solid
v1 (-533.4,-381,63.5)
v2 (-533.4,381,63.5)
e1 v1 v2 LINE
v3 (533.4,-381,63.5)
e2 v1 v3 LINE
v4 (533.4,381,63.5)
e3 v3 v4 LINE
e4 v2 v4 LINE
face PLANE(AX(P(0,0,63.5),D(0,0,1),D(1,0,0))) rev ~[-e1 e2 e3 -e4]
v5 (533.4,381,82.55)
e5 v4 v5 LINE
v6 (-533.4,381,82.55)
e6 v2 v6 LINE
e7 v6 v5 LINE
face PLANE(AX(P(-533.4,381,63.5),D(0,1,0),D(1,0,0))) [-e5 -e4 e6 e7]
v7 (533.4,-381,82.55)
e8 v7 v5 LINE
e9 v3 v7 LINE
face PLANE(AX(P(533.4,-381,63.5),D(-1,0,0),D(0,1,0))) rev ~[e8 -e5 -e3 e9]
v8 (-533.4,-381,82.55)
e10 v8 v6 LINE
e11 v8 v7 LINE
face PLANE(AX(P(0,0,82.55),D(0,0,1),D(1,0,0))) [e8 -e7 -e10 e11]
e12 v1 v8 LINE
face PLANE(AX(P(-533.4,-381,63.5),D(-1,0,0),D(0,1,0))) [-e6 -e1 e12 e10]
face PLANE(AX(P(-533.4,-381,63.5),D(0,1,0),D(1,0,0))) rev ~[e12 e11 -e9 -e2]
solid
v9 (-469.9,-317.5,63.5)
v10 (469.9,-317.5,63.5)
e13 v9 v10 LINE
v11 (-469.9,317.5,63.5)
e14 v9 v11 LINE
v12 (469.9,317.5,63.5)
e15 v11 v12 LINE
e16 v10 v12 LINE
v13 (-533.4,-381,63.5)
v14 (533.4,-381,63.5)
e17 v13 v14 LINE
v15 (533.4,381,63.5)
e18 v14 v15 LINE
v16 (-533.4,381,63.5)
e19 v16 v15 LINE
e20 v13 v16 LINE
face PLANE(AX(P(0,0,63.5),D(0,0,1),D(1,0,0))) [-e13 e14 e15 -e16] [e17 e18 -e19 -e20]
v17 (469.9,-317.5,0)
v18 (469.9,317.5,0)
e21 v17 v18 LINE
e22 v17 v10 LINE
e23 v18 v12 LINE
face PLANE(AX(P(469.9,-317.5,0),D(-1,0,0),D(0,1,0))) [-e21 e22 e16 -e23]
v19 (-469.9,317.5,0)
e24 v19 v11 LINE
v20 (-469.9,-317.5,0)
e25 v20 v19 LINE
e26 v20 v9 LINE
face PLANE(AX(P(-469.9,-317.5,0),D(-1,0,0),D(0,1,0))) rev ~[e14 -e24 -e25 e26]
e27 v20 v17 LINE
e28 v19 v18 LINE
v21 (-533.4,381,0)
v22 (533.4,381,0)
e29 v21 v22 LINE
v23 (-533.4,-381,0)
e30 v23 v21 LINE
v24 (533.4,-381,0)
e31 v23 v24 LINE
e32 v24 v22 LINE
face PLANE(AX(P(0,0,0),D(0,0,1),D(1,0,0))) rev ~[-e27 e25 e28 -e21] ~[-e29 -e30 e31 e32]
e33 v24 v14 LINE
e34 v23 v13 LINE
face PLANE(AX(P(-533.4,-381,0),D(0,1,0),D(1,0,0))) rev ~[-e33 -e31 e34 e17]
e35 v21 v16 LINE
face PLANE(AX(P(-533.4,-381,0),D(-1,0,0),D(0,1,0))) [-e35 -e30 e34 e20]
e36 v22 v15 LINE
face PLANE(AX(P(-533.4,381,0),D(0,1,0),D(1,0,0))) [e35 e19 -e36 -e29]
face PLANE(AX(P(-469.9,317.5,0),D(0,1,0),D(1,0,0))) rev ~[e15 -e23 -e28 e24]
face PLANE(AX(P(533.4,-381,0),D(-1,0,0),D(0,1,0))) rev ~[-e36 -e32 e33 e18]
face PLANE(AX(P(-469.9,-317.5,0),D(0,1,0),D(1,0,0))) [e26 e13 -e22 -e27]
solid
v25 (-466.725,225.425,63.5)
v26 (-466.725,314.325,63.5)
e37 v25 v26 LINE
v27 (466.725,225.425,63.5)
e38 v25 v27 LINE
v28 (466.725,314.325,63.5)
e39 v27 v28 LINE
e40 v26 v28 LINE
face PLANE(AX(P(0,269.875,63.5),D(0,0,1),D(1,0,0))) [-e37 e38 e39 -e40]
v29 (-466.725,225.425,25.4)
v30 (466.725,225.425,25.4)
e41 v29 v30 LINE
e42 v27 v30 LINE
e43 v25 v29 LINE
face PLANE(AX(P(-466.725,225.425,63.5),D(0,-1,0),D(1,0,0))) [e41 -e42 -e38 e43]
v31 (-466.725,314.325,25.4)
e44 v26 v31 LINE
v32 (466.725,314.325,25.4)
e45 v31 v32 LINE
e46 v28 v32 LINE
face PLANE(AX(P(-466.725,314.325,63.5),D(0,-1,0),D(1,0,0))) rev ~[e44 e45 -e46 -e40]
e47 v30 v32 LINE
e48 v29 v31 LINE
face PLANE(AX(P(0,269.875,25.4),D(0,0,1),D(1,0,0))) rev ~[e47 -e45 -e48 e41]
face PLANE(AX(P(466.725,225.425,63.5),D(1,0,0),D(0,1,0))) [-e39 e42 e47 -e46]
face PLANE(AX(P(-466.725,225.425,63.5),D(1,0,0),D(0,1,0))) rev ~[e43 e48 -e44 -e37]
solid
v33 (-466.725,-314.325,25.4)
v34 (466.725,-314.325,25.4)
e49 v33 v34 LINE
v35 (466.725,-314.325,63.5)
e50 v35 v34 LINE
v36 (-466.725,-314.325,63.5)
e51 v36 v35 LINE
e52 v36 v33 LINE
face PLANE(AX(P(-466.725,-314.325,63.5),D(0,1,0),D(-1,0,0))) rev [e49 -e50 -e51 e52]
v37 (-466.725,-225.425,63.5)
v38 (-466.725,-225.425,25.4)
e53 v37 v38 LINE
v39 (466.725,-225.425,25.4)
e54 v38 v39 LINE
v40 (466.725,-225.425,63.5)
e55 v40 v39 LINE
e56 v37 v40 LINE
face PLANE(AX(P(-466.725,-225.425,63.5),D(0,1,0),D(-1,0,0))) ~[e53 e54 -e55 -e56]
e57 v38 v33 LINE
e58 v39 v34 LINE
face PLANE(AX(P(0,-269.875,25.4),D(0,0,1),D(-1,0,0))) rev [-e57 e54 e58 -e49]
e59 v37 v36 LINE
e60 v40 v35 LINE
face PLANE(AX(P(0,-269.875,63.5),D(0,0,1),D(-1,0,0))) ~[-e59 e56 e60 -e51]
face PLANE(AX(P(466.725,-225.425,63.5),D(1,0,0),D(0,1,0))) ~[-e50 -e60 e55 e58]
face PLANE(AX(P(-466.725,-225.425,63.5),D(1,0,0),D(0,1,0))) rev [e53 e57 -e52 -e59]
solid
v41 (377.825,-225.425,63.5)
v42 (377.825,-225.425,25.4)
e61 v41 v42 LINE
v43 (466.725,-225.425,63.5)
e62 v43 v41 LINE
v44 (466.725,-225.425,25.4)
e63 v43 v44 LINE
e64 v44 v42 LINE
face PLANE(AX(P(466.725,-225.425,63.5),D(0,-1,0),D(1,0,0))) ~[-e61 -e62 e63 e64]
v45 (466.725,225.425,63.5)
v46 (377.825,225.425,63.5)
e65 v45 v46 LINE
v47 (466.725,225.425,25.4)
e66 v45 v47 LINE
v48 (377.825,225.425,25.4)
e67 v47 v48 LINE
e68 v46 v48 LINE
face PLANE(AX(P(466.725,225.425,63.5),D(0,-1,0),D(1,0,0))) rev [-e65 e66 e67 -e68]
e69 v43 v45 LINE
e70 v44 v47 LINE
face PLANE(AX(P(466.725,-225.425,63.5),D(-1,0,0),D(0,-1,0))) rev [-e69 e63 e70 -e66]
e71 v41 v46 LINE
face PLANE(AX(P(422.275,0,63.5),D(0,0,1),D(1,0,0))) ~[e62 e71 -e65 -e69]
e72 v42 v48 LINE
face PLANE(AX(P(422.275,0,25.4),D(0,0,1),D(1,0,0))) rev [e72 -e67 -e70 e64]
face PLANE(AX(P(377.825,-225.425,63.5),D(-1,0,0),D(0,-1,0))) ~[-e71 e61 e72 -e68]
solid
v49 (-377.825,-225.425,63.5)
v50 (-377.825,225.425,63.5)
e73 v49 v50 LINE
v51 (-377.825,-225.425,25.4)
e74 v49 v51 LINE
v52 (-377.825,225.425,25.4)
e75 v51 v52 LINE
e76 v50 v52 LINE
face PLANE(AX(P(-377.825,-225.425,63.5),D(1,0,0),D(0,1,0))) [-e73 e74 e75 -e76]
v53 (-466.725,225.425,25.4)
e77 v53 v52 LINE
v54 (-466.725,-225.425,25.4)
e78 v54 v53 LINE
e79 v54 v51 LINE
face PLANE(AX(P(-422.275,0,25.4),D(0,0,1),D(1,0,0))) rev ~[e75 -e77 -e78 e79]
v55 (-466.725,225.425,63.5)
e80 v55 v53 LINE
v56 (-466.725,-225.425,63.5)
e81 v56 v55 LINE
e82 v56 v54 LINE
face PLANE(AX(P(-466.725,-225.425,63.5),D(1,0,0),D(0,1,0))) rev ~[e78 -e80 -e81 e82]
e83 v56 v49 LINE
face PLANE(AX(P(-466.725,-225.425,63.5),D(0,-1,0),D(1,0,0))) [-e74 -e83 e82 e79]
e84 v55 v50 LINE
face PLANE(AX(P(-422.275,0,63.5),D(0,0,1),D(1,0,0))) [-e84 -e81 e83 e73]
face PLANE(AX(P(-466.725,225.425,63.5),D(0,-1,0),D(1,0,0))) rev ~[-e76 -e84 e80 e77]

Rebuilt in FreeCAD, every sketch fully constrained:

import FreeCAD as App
import Part
import Sketcher
from FreeCAD import Vector
Q = App.Units.Quantity

doc = App.newDocument("Part")
params = doc.addObject("Spreadsheet::Sheet", "Params")
for row, (alias, value) in enumerate([
    ("sketch1_width", "42 in"),
    ("sketch1_width2", "37 in"),
    ("sketch1_height", "30 in"),
    ("sketch1_height2", "25 in"),
    ("pad1_length", "2.5 in"),
    ("sketch2_height", "3.5 in"),
    ("sketch2_width", "36.75 in"),
    ("pad2_length", "1.5 in"),
    ("sketch3_width", "3.5 in"),
    ("sketch3_height", "17.75 in"),
    ("pad3_length", "1.5 in"),
    ("sketch4_width", "42 in"),
    ("sketch4_height", "30 in"),
    ("pad4_length", "0.75 in"),
], start=1):
    params.set(f"A{row}", alias)
    params.set(f"B{row}", "=" + value)
    params.setAlias(f"B{row}", alias)

body = doc.addObject("PartDesign::Body", "Body")

# Sketch on XY plane
sketch1 = doc.addObject("Sketcher::SketchObject", "Sketch")
body.addObject(sketch1)
sketch1.AttachmentSupport = (doc.XY_Plane, [""])
sketch1.MapMode = "FlatFace"
sketch1.addGeometry([
    Part.LineSegment(Vector(-533, 381, 0), Vector(-533, -381, 0)),  # 0
    Part.LineSegment(Vector(-533, -381, 0), Vector(533, -381, 0)),  # 1
    Part.LineSegment(Vector(533, -381, 0), Vector(533, 381, 0)),  # 2
    Part.LineSegment(Vector(533, 381, 0), Vector(-533, 381, 0)),  # 3
    Part.LineSegment(Vector(470, -318, 0), Vector(-470, -318, 0)),  # 4
    Part.LineSegment(Vector(-470, -318, 0), Vector(-470, 318, 0)),  # 5
    Part.LineSegment(Vector(-470, 318, 0), Vector(470, 318, 0)),  # 6
    Part.LineSegment(Vector(470, 318, 0), Vector(470, -318, 0)),  # 7
], False)
sketch1.addConstraint([
    Sketcher.Constraint("Coincident", 0, 2, 1, 1),
    Sketcher.Constraint("Coincident", 1, 2, 2, 1),
    Sketcher.Constraint("Coincident", 2, 2, 3, 1),
    Sketcher.Constraint("Coincident", 3, 2, 0, 1),
    Sketcher.Constraint("Coincident", 4, 2, 5, 1),
    Sketcher.Constraint("Coincident", 5, 2, 6, 1),
    Sketcher.Constraint("Coincident", 6, 2, 7, 1),
    Sketcher.Constraint("Coincident", 7, 2, 4, 1),
    Sketcher.Constraint("Vertical", 0),
    Sketcher.Constraint("Horizontal", 1),
    Sketcher.Constraint("Vertical", 2),
    Sketcher.Constraint("Horizontal", 3),
    Sketcher.Constraint("Horizontal", 4),
    Sketcher.Constraint("Vertical", 5),
    Sketcher.Constraint("Horizontal", 6),
    Sketcher.Constraint("Vertical", 7),
    Sketcher.Constraint("Symmetric", 0, 2, 2, 2, -1, 1),
    Sketcher.Constraint("Symmetric", 4, 2, 6, 2, -1, 1),
    Sketcher.Constraint("DistanceX", 1, 1, 1, 2, Q("42 in")),
    Sketcher.Constraint("DistanceX", 4, 2, 4, 1, Q("37 in")),
    Sketcher.Constraint("DistanceY", 0, 2, 0, 1, Q("30 in")),
    Sketcher.Constraint("DistanceY", 5, 1, 5, 2, Q("25 in")),
])
sketch1.setExpression("Constraints[18]", "Params.sketch1_width")
sketch1.setExpression("Constraints[19]", "Params.sketch1_width2")
sketch1.setExpression("Constraints[20]", "Params.sketch1_height")
sketch1.setExpression("Constraints[21]", "Params.sketch1_height2")
pad1 = doc.addObject("PartDesign::Pad", "Pad")
body.addObject(pad1)
pad1.Profile = sketch1
pad1.setExpression("Length", "Params.pad1_length")
body2 = doc.addObject("PartDesign::Body", "Body001")

# Sketch on XY plane
sketch2 = doc.addObject("Sketcher::SketchObject", "Sketch001")
body2.addObject(sketch2)
sketch2.AttachmentSupport = (doc.getObject("XY_Plane001"), [""])
sketch2.MapMode = "FlatFace"
sketch2.AttachmentOffset = App.Placement(Vector(0, 0, 2.5 * 25.4), App.Rotation())
sketch2.addGeometry([
    Part.LineSegment(Vector(-467, 314, 0), Vector(-467, 225, 0)),
    Part.LineSegment(Vector(-467, 225, 0), Vector(467, 225, 0)),
    Part.LineSegment(Vector(467, 225, 0), Vector(467, 314, 0)),
    Part.LineSegment(Vector(467, 314, 0), Vector(-467, 314, 0)),
], False)
sketch2.addConstraint([
    Sketcher.Constraint("Coincident", 0, 2, 1, 1),
    Sketcher.Constraint("Coincident", 1, 2, 2, 1),
    Sketcher.Constraint("Coincident", 2, 2, 3, 1),
    Sketcher.Constraint("Coincident", 3, 2, 0, 1),
    Sketcher.Constraint("Vertical", 0),
    Sketcher.Constraint("Horizontal", 1),
    Sketcher.Constraint("Vertical", 2),
    Sketcher.Constraint("Horizontal", 3),
    Sketcher.Constraint("DistanceY", 0, 2, 0, 1, Q("3.5 in")),
    Sketcher.Constraint("DistanceX", 1, 1, 1, 2, Q("36.75 in")),
    Sketcher.Constraint("DistanceX", 0, 2, -1, 1, Q("18.375 in")),
    Sketcher.Constraint("DistanceY", -1, 1, 0, 2, Q("8.875 in")),
])
sketch2.setExpression("Constraints[8]", "Params.sketch2_height")
sketch2.setExpression("Constraints[9]", "Params.sketch2_width")
pad2 = doc.addObject("PartDesign::Pad", "Pad001")
body2.addObject(pad2)
pad2.Profile = sketch2
pad2.setExpression("Length", "Params.pad2_length")
pad2.Reversed = True
body3 = doc.addObject("PartDesign::Body", "Body002")
doc.recompute()

mirroring = doc.addObject("Part::Mirroring", "Mirroring")
mirroring.Source = body2
mirroring.Base = Vector(0, 0, 0)
mirroring.Normal = Vector(0, -1, 0)
body3.BaseFeature = mirroring
doc.recompute()
body4 = doc.addObject("PartDesign::Body", "Body003")

# Sketch on XY plane
sketch3 = doc.addObject("Sketcher::SketchObject", "Sketch002")
body4.addObject(sketch3)
sketch3.AttachmentSupport = (doc.getObject("XY_Plane003"), [""])
sketch3.MapMode = "FlatFace"
sketch3.AttachmentOffset = App.Placement(Vector(0, 0, 2.5 * 25.4), App.Rotation())
sketch3.addGeometry([
    Part.LineSegment(Vector(-467, 225, 0), Vector(-467, -225, 0)),
    Part.LineSegment(Vector(-467, -225, 0), Vector(-378, -225, 0)),
    Part.LineSegment(Vector(-378, -225, 0), Vector(-378, 225, 0)),
    Part.LineSegment(Vector(-378, 225, 0), Vector(-467, 225, 0)),
], False)
sketch3.addConstraint([
    Sketcher.Constraint("Coincident", 0, 2, 1, 1),
    Sketcher.Constraint("Coincident", 1, 2, 2, 1),
    Sketcher.Constraint("Coincident", 2, 2, 3, 1),
    Sketcher.Constraint("Coincident", 3, 2, 0, 1),
    Sketcher.Constraint("Vertical", 0),
    Sketcher.Constraint("Horizontal", 1),
    Sketcher.Constraint("Vertical", 2),
    Sketcher.Constraint("Horizontal", 3),
    Sketcher.Constraint("DistanceX", 1, 1, 1, 2, Q("3.5 in")),
    Sketcher.Constraint("DistanceY", 0, 2, 0, 1, Q("17.75 in")),
    Sketcher.Constraint("DistanceX", 0, 2, -1, 1, Q("18.375 in")),
    Sketcher.Constraint("DistanceY", 0, 2, -1, 1, Q("8.875 in")),
])
sketch3.setExpression("Constraints[8]", "Params.sketch3_width")
sketch3.setExpression("Constraints[9]", "Params.sketch3_height")
pad3 = doc.addObject("PartDesign::Pad", "Pad002")
body4.addObject(pad3)
pad3.Profile = sketch3
pad3.setExpression("Length", "Params.pad3_length")
pad3.Reversed = True
body5 = doc.addObject("PartDesign::Body", "Body004")
doc.recompute()

mirroring2 = doc.addObject("Part::Mirroring", "Mirroring001")
mirroring2.Source = body4
mirroring2.Base = Vector(0, 0, 0)
mirroring2.Normal = Vector(1, 0, 0)
body5.BaseFeature = mirroring2
doc.recompute()
body6 = doc.addObject("PartDesign::Body", "Body005")

# Sketch on XY plane
sketch4 = doc.addObject("Sketcher::SketchObject", "Sketch003")
body6.addObject(sketch4)
sketch4.AttachmentSupport = (doc.getObject("XY_Plane005"), [""])
sketch4.MapMode = "FlatFace"
sketch4.AttachmentOffset = App.Placement(Vector(0, 0, 2.5 * 25.4), App.Rotation())
sketch4.addGeometry([
    Part.LineSegment(Vector(-533, 381, 0), Vector(-533, -381, 0)),
    Part.LineSegment(Vector(-533, -381, 0), Vector(533, -381, 0)),
    Part.LineSegment(Vector(533, -381, 0), Vector(533, 381, 0)),
    Part.LineSegment(Vector(533, 381, 0), Vector(-533, 381, 0)),
], False)
sketch4.addConstraint([
    Sketcher.Constraint("Coincident", 0, 2, 1, 1),
    Sketcher.Constraint("Coincident", 1, 2, 2, 1),
    Sketcher.Constraint("Coincident", 2, 2, 3, 1),
    Sketcher.Constraint("Coincident", 3, 2, 0, 1),
    Sketcher.Constraint("Vertical", 0),
    Sketcher.Constraint("Horizontal", 1),
    Sketcher.Constraint("Vertical", 2),
    Sketcher.Constraint("Horizontal", 3),
    Sketcher.Constraint("Symmetric", 0, 2, 2, 2, -1, 1),
    Sketcher.Constraint("DistanceX", 1, 1, 1, 2, Q("42 in")),
    Sketcher.Constraint("DistanceY", 0, 2, 0, 1, Q("30 in")),
])
sketch4.setExpression("Constraints[9]", "Params.sketch4_width")
sketch4.setExpression("Constraints[10]", "Params.sketch4_height")
pad4 = doc.addObject("PartDesign::Pad", "Pad003")
body6.addObject(pad4)
pad4.Profile = sketch4
pad4.setExpression("Length", "Params.pad4_length")
mirroring.Visibility = False
mirroring2.Visibility = False

doc.recompute()
